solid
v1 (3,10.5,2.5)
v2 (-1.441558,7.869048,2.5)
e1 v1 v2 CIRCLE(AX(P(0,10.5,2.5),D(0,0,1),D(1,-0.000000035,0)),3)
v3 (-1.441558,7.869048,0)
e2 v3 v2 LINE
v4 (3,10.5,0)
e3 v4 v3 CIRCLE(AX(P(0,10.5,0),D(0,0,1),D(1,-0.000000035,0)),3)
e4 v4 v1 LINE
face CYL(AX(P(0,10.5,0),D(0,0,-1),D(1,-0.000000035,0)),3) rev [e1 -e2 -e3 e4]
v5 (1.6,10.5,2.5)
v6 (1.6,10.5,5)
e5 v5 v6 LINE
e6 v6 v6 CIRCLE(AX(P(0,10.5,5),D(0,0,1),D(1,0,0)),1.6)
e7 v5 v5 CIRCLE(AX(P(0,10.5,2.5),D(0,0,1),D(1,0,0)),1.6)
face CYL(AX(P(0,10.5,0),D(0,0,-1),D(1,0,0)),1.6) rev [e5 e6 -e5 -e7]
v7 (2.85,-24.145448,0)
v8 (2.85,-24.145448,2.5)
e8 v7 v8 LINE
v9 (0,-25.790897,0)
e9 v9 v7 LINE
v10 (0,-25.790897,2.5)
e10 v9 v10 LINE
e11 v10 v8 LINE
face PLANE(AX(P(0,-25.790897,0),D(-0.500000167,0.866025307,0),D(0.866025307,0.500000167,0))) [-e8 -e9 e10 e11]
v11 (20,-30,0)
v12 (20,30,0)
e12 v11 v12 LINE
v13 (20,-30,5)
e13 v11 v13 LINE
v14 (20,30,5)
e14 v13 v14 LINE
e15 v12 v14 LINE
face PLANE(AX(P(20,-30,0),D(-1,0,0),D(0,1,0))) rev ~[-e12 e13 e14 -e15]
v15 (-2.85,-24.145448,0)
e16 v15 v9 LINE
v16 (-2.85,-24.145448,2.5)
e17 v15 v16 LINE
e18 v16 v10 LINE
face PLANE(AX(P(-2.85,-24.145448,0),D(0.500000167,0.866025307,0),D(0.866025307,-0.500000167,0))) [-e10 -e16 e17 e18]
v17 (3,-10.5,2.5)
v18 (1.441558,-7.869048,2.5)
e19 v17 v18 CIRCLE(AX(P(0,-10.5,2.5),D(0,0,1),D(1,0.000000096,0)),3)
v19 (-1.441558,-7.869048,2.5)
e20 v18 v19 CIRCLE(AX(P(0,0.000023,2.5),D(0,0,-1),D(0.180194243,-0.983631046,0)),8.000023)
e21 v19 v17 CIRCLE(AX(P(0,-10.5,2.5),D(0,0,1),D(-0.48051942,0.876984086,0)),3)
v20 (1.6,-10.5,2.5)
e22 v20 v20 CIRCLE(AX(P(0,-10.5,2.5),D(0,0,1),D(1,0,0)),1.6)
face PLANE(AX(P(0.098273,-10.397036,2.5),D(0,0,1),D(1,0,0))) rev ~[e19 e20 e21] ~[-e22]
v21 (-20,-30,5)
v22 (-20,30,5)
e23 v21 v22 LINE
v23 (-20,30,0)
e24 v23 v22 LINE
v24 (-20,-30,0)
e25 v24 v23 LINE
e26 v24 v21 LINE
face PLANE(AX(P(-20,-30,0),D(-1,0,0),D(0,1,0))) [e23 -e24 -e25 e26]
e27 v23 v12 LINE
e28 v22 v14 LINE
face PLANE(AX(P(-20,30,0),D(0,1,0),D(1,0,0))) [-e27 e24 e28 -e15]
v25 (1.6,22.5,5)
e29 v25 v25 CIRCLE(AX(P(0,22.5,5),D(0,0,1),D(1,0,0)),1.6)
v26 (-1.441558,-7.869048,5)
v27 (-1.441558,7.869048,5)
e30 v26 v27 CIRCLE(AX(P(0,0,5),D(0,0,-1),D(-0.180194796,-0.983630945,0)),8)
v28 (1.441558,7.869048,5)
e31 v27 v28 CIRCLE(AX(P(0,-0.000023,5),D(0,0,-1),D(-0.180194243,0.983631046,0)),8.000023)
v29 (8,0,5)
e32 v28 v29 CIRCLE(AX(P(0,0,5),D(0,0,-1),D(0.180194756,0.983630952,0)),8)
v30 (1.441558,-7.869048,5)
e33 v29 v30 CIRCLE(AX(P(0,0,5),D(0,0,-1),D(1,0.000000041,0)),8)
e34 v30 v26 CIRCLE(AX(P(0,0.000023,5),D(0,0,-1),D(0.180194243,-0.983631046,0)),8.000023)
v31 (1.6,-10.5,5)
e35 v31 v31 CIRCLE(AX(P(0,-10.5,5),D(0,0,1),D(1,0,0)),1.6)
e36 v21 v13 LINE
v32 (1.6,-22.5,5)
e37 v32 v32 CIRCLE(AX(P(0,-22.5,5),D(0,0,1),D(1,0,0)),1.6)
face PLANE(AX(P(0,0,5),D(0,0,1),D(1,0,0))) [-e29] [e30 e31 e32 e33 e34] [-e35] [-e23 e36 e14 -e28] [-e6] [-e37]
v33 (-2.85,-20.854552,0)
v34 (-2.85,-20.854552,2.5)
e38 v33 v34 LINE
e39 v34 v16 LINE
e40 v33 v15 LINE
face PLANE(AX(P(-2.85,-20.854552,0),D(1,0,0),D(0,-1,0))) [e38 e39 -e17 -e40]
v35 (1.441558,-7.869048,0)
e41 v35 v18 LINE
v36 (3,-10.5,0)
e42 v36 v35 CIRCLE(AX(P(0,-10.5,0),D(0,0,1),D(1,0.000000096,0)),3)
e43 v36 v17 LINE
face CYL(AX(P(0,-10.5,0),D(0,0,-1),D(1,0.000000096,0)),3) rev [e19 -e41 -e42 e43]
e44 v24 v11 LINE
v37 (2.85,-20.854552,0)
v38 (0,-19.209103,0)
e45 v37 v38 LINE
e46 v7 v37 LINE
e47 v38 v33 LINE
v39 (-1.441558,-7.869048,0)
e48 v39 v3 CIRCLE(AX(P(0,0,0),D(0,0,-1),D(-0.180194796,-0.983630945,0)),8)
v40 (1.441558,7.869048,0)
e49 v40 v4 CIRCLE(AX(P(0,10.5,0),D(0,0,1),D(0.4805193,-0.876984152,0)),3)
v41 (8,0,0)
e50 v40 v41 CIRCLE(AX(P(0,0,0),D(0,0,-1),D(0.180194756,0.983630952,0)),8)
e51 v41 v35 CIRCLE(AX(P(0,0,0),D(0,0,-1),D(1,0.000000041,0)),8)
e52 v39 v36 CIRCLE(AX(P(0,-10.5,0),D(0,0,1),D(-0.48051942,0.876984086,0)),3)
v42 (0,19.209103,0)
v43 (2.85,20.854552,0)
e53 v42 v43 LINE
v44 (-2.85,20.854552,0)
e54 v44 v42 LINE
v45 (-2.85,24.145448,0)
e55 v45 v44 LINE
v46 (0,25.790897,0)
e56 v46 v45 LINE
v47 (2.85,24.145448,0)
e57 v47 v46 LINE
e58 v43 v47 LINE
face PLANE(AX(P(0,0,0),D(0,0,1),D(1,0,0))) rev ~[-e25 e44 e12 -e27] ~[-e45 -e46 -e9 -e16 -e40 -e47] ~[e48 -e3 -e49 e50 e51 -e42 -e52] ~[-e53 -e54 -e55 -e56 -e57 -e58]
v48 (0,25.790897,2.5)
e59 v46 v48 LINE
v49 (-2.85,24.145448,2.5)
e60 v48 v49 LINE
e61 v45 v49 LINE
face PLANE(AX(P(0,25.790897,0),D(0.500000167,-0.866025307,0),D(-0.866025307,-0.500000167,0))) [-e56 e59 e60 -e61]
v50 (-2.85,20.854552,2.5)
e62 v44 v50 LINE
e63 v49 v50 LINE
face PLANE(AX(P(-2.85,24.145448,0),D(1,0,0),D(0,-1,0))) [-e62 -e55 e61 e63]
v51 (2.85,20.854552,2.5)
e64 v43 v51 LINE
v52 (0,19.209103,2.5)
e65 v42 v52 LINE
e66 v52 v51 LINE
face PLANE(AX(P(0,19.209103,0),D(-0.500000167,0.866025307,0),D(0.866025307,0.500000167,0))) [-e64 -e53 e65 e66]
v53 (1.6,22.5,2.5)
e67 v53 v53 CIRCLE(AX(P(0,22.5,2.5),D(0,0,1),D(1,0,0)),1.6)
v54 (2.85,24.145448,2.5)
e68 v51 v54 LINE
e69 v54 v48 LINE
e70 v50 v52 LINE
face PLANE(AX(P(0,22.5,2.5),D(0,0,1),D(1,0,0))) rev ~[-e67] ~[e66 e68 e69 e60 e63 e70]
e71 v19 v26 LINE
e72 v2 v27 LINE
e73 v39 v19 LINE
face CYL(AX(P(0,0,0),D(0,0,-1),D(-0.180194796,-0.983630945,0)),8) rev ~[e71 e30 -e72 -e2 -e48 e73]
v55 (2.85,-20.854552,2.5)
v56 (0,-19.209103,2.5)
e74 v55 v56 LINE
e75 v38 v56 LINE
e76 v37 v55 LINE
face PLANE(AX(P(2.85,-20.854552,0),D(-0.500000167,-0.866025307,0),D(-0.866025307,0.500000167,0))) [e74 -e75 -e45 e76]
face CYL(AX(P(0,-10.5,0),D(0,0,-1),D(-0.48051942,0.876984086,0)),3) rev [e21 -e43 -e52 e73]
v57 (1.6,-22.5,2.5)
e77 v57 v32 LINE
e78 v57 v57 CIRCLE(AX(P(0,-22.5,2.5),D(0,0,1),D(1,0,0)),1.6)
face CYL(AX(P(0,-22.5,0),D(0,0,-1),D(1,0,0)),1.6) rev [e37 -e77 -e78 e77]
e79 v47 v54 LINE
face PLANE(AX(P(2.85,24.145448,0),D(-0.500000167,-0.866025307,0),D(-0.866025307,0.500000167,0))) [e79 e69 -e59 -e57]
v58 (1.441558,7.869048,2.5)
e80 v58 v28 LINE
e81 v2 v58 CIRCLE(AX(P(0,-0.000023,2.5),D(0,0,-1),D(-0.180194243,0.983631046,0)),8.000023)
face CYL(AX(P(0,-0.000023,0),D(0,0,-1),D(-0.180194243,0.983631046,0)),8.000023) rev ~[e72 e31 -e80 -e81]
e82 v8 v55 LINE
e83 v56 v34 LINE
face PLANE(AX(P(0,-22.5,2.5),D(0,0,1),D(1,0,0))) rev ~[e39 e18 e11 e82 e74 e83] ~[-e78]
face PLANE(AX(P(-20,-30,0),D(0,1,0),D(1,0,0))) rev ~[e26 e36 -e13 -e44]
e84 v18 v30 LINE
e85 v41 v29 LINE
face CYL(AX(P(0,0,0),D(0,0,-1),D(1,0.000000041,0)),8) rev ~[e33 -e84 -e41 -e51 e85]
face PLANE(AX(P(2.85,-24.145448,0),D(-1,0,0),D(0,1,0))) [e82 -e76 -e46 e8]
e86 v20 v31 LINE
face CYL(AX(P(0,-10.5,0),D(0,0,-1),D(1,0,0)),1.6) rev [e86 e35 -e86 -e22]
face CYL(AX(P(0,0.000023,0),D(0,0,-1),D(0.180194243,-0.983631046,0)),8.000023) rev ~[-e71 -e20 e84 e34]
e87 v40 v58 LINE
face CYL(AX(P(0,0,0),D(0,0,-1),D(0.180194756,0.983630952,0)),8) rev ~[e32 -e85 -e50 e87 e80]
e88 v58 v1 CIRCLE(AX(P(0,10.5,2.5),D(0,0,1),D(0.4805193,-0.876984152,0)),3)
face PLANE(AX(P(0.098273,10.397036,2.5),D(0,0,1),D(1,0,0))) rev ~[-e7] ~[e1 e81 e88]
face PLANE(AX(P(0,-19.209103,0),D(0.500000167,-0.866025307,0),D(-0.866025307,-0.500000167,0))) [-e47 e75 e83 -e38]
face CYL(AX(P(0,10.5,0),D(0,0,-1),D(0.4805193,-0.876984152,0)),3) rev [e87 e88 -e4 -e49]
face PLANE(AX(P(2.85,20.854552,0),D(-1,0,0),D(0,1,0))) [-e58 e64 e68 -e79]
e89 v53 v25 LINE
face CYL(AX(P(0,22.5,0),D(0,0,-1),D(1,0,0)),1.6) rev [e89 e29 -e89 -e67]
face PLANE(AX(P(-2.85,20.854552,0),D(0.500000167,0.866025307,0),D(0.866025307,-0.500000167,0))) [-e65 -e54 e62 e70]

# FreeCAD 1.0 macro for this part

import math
import FreeCAD as App
import Part
import Sketcher

V = App.Vector
Q = App.Units.Quantity


def add_polygon(sketch, points):
    """Adds a closed chain of lines whose ends are joined by coincident constraints."""
    first, n = sketch.GeometryCount, len(points)
    for a, b in zip(points, points[1:] + points[:1]):
        sketch.addGeometry(Part.LineSegment(App.Vector(*a, 0), App.Vector(*b, 0)), False)
    for i in range(n):
        sketch.addConstraint(Sketcher.Constraint("Coincident", first + i, 2, first + (i + 1) % n, 1))

doc = App.newDocument("Part")
body = doc.addObject("PartDesign::Body", "Body")

# Sketch on XY plane
sketch1 = doc.addObject("Sketcher::SketchObject", "Sketch")
body.addObject(sketch1)
sketch1.AttachmentSupport = (doc.XY_Plane, [""])
sketch1.MapMode = "FlatFace"
add_polygon(sketch1, [(-20, 30), (-20, -30), (20, -30), (20, 30)])  # lines 0-3
sketch1.addGeometry(Part.Circle(V(0, -22.5, 0), V(0, 0, 1), 1.6), False)  # 4
sketch1.addGeometry(Part.Circle(V(0, -10.5, 0), V(0, 0, 1), 1.6), False)  # 5
sketch1.addGeometry(Part.Circle(V(0, 10.5, 0), V(0, 0, 1), 1.6), False)  # 6
sketch1.addGeometry(Part.Circle(V(0, 22.5, 0), V(0, 0, 1), 1.6), False)  # 7
sketch1.addGeometry(Part.ArcOfCircle(Part.Circle(V(0, 0, 0), V(0, 0, 1), 8), math.radians(-0.000002), math.radians(79.618896)), False)  # 8
sketch1.addGeometry(Part.ArcOfCircle(Part.Circle(V(0, 0, 0), V(0, 0, 1), 8), math.radians(-79.618896), math.radians(0.000002)), False)  # 9
sketch1.addGeometry(Part.ArcOfCircle(Part.Circle(V(0, 0.000023, 0), V(0, 0, 1), 8.000023), math.radians(-100.381074), math.radians(-79.618926)), False)  # 10
sketch1.addGeometry(Part.ArcOfCircle(Part.Circle(V(0, 0, 0), V(0, 0, 1), 8), math.radians(100.381106), math.radians(259.618894)), False)  # 11
sketch1.addGeometry(Part.ArcOfCircle(Part.Circle(V(0, -0.000023, 0), V(0, 0, 1), 8.000023), math.radians(79.618926), math.radians(100.381074)), False)  # 12
sketch1.addConstraint([
    Sketcher.Constraint("Coincident", 8, 1, 9, 2),
    Sketcher.Constraint("Coincident", 9, 1, 10, 2),
    Sketcher.Constraint("Coincident", 10, 1, 11, 2),
    Sketcher.Constraint("Coincident", 11, 1, 12, 2),
    Sketcher.Constraint("Coincident", 12, 1, 8, 2),
    Sketcher.Constraint("Vertical", 0),
    Sketcher.Constraint("Horizontal", 1),
    Sketcher.Constraint("Vertical", 2),
    Sketcher.Constraint("Horizontal", 3),
    Sketcher.Constraint("Coincident", 8, 3, -1, 1),
    Sketcher.Constraint("Coincident", 9, 3, -1, 1),
    Sketcher.Constraint("Coincident", 11, 3, -1, 1),
    Sketcher.Constraint("PointOnObject", 4, 3, -2),
    Sketcher.Constraint("PointOnObject", 5, 3, -2),
    Sketcher.Constraint("PointOnObject", 6, 3, -2),
    Sketcher.Constraint("PointOnObject", 7, 3, -2),
    Sketcher.Constraint("PointOnObject", 10, 3, -2),
    Sketcher.Constraint("PointOnObject", 8, 1, -1),
    Sketcher.Constraint("Radius", 8, 8.0),
    Sketcher.Constraint("Diameter", 4, 3.2),
    Sketcher.Constraint("Diameter", 5, 3.2),
    Sketcher.Constraint("Diameter", 6, 3.2),
    Sketcher.Constraint("Diameter", 7, 3.2),
    Sketcher.Constraint("DistanceX", 1, 1, 1, 2, 40.0),
    Sketcher.Constraint("DistanceY", 0, 2, 0, 1, 60.0),
    Sketcher.Constraint("DistanceX", 0, 2, -1, 1, 20.0),
    Sketcher.Constraint("DistanceY", 0, 2, -1, 1, 30.0),
    Sketcher.Constraint("DistanceY", 4, 3, 5, 3, 12.0),
    Sketcher.Constraint("DistanceY", 5, 3, 6, 3, 21.0),
    Sketcher.Constraint("DistanceY", 6, 3, 7, 3, 12.0),
    Sketcher.Constraint("DistanceY", 4, 3, -1, 1, 22.5),
    Sketcher.Constraint("Radius", 10, 8.000023),
    Sketcher.Constraint("Radius", 12, 8.000023),
    Sketcher.Constraint("DistanceX", 9, 3, 9, 1, 1.441558),
    Sketcher.Constraint("DistanceX", 10, 1, 11, 3, 1.441558),
    Sketcher.Constraint("DistanceX", 11, 1, 11, 3, 1.441558),
    Sketcher.Constraint("DistanceX", 8, 3, 12, 1, 1.441558),
])
pad1 = doc.addObject("PartDesign::Pad", "Pad")
body.addObject(pad1)
pad1.Profile = sketch1
pad1.Length = 5

# Sketch on XY plane
sketch2 = doc.addObject("Sketcher::SketchObject", "Sketch001")
body.addObject(sketch2)
sketch2.AttachmentSupport = (doc.XY_Plane, [""])
sketch2.MapMode = "FlatFace"
add_polygon(sketch2, [(0, 19.209103), (2.85, 20.854552), (2.85, 24.145448), (0, 25.790897), (-2.85, 24.145448), (-2.85, 20.854552)])  # lines 0-5
sketch2.addGeometry(Part.Circle(V(0, 22.5, 0), V(0, 0, 1), 1.6), False)  # 6
add_polygon(sketch2, [(0, -25.790897), (2.85, -24.145448), (2.85, -20.854552), (0, -19.209103), (-2.85, -20.854552), (-2.85, -24.145448)])  # lines 7-12
sketch2.addGeometry(Part.Circle(V(0, -22.5, 0), V(0, 0, 1), 1.6), False)  # 13
sketch2.addGeometry(Part.ArcOfCircle(Part.Circle(V(0, -0.000023, 0), V(0, 0, 1), 8.000023), math.radians(79.618926), math.radians(100.381074)), False)  # 14
sketch2.addGeometry(Part.ArcOfCircle(Part.Circle(V(0, 10.5, 0), V(0, 0, 1), 3), math.radians(-61.280676), math.radians(-0.000005)), False)  # 15
sketch2.addGeometry(Part.ArcOfCircle(Part.Circle(V(0, 10.5, 0), V(0, 0, 1), 3), math.radians(-0.000002), math.radians(241.280668)), False)  # 16
sketch2.addGeometry(Part.Circle(V(0, 10.5, 0), V(0, 0, 1), 1.6), False)  # 17
sketch2.addGeometry(Part.ArcOfCircle(Part.Circle(V(0, -10.5, 0), V(0, 0, 1), 3), math.radians(0.000005), math.radians(61.280676)), False)  # 18
sketch2.addGeometry(Part.ArcOfCircle(Part.Circle(V(0, 0.000023, 0), V(0, 0, 1), 8.000023), math.radians(-100.381074), math.radians(-79.618926)), False)  # 19
sketch2.addGeometry(Part.ArcOfCircle(Part.Circle(V(0, -10.5, 0), V(0, 0, 1), 3), math.radians(118.719332), math.radians(360.000002)), False)  # 20
sketch2.addGeometry(Part.Circle(V(0, -10.5, 0), V(0, 0, 1), 1.6), False)  # 21
sketch2.addConstraint([
    Sketcher.Constraint("Coincident", 14, 1, 15, 1),
    Sketcher.Constraint("Tangent", 15, 2, 16, 1),
    Sketcher.Constraint("Coincident", 16, 2, 14, 2),
    Sketcher.Constraint("Coincident", 18, 2, 19, 2),
    Sketcher.Constraint("Coincident", 19, 1, 20, 1),
    Sketcher.Constraint("Tangent", 20, 2, 18, 1),
    Sketcher.Constraint("Vertical", 1),
    Sketcher.Constraint("Vertical", 4),
    Sketcher.Constraint("Vertical", 8),
    Sketcher.Constraint("Vertical", 11),
    Sketcher.Constraint("Coincident", 17, 3, 15, 3),
    Sketcher.Constraint("Coincident", 21, 3, 18, 3),
    Sketcher.Constraint("Equal", 6, 13),
    Sketcher.Constraint("Equal", 15, 16),
    Sketcher.Constraint("Equal", 13, 17),
    Sketcher.Constraint("Equal", 16, 18),
    Sketcher.Constraint("Equal", 14, 19),
    Sketcher.Constraint("Equal", 18, 20),
    Sketcher.Constraint("Equal", 17, 21),
    Sketcher.Constraint("Symmetric", 6, 3, 13, 3, -1, 1),
    Sketcher.Constraint("Symmetric", 15, 3, 18, 3, -1, 1),
    Sketcher.Constraint("Symmetric", 14, 3, 19, 3, -1, 1),
    Sketcher.Constraint("Symmetric", 3, 2, 7, 2, -1, 1),
    Sketcher.Constraint("Symmetric", 5, 2, 9, 2, -1, 1),
    Sketcher.Constraint("Symmetric", 0, 2, 10, 2, -1, 1),
    Sketcher.Constraint("Symmetric", 2, 2, 12, 2, -1, 1),
    Sketcher.Constraint("Symmetric", 1, 2, 3, 2, -2),
    Sketcher.Constraint("Symmetric", 14, 1, 16, 2, -2),
    Sketcher.Constraint("PointOnObject", 6, 3, -2),
    Sketcher.Constraint("PointOnObject", 2, 2, -2),
    Sketcher.Constraint("PointOnObject", 5, 2, -2),
    Sketcher.Constraint("Parallel", 0, 3),
    Sketcher.Constraint("Parallel", 2, 5),
    Sketcher.Constraint("Parallel", 5, 9),
    Sketcher.Constraint("Parallel", 9, 12),
    Sketcher.Constraint("Horizontal", 17, 3, 15, 2),
    Sketcher.Constraint("Horizontal", 21, 3, 20, 2),
    Sketcher.Constraint("Radius", 15, 3.0),
    Sketcher.Constraint("Diameter", 6, 3.2),
    Sketcher.Constraint("Angle", 0, Q("30.000011 deg")),
    Sketcher.Constraint("DistanceY", 13, 3, 6, 3, 45.0),
    Sketcher.Constraint("DistanceY", 15, 3, 6, 3, 12.0),
    Sketcher.Constraint("DistanceX", 3, 2, 1, 2, 5.7),
    Sketcher.Constraint("Radius", 14, 8.000023),
    Sketcher.Constraint("DistanceY", 1, 1, 1, 2, 3.290896),
    Sketcher.Constraint("DistanceY", -1, 1, 16, 2, 7.869048),
    Sketcher.Constraint("DistanceY", 15, 3, 0, 2, 10.354552),
])
pocket1 = doc.addObject("PartDesign::Pocket", "Pocket")
body.addObject(pocket1)
pocket1.Profile = sketch2
pocket1.Length = 2.5
pocket1.Reversed = True

doc.recompute()
